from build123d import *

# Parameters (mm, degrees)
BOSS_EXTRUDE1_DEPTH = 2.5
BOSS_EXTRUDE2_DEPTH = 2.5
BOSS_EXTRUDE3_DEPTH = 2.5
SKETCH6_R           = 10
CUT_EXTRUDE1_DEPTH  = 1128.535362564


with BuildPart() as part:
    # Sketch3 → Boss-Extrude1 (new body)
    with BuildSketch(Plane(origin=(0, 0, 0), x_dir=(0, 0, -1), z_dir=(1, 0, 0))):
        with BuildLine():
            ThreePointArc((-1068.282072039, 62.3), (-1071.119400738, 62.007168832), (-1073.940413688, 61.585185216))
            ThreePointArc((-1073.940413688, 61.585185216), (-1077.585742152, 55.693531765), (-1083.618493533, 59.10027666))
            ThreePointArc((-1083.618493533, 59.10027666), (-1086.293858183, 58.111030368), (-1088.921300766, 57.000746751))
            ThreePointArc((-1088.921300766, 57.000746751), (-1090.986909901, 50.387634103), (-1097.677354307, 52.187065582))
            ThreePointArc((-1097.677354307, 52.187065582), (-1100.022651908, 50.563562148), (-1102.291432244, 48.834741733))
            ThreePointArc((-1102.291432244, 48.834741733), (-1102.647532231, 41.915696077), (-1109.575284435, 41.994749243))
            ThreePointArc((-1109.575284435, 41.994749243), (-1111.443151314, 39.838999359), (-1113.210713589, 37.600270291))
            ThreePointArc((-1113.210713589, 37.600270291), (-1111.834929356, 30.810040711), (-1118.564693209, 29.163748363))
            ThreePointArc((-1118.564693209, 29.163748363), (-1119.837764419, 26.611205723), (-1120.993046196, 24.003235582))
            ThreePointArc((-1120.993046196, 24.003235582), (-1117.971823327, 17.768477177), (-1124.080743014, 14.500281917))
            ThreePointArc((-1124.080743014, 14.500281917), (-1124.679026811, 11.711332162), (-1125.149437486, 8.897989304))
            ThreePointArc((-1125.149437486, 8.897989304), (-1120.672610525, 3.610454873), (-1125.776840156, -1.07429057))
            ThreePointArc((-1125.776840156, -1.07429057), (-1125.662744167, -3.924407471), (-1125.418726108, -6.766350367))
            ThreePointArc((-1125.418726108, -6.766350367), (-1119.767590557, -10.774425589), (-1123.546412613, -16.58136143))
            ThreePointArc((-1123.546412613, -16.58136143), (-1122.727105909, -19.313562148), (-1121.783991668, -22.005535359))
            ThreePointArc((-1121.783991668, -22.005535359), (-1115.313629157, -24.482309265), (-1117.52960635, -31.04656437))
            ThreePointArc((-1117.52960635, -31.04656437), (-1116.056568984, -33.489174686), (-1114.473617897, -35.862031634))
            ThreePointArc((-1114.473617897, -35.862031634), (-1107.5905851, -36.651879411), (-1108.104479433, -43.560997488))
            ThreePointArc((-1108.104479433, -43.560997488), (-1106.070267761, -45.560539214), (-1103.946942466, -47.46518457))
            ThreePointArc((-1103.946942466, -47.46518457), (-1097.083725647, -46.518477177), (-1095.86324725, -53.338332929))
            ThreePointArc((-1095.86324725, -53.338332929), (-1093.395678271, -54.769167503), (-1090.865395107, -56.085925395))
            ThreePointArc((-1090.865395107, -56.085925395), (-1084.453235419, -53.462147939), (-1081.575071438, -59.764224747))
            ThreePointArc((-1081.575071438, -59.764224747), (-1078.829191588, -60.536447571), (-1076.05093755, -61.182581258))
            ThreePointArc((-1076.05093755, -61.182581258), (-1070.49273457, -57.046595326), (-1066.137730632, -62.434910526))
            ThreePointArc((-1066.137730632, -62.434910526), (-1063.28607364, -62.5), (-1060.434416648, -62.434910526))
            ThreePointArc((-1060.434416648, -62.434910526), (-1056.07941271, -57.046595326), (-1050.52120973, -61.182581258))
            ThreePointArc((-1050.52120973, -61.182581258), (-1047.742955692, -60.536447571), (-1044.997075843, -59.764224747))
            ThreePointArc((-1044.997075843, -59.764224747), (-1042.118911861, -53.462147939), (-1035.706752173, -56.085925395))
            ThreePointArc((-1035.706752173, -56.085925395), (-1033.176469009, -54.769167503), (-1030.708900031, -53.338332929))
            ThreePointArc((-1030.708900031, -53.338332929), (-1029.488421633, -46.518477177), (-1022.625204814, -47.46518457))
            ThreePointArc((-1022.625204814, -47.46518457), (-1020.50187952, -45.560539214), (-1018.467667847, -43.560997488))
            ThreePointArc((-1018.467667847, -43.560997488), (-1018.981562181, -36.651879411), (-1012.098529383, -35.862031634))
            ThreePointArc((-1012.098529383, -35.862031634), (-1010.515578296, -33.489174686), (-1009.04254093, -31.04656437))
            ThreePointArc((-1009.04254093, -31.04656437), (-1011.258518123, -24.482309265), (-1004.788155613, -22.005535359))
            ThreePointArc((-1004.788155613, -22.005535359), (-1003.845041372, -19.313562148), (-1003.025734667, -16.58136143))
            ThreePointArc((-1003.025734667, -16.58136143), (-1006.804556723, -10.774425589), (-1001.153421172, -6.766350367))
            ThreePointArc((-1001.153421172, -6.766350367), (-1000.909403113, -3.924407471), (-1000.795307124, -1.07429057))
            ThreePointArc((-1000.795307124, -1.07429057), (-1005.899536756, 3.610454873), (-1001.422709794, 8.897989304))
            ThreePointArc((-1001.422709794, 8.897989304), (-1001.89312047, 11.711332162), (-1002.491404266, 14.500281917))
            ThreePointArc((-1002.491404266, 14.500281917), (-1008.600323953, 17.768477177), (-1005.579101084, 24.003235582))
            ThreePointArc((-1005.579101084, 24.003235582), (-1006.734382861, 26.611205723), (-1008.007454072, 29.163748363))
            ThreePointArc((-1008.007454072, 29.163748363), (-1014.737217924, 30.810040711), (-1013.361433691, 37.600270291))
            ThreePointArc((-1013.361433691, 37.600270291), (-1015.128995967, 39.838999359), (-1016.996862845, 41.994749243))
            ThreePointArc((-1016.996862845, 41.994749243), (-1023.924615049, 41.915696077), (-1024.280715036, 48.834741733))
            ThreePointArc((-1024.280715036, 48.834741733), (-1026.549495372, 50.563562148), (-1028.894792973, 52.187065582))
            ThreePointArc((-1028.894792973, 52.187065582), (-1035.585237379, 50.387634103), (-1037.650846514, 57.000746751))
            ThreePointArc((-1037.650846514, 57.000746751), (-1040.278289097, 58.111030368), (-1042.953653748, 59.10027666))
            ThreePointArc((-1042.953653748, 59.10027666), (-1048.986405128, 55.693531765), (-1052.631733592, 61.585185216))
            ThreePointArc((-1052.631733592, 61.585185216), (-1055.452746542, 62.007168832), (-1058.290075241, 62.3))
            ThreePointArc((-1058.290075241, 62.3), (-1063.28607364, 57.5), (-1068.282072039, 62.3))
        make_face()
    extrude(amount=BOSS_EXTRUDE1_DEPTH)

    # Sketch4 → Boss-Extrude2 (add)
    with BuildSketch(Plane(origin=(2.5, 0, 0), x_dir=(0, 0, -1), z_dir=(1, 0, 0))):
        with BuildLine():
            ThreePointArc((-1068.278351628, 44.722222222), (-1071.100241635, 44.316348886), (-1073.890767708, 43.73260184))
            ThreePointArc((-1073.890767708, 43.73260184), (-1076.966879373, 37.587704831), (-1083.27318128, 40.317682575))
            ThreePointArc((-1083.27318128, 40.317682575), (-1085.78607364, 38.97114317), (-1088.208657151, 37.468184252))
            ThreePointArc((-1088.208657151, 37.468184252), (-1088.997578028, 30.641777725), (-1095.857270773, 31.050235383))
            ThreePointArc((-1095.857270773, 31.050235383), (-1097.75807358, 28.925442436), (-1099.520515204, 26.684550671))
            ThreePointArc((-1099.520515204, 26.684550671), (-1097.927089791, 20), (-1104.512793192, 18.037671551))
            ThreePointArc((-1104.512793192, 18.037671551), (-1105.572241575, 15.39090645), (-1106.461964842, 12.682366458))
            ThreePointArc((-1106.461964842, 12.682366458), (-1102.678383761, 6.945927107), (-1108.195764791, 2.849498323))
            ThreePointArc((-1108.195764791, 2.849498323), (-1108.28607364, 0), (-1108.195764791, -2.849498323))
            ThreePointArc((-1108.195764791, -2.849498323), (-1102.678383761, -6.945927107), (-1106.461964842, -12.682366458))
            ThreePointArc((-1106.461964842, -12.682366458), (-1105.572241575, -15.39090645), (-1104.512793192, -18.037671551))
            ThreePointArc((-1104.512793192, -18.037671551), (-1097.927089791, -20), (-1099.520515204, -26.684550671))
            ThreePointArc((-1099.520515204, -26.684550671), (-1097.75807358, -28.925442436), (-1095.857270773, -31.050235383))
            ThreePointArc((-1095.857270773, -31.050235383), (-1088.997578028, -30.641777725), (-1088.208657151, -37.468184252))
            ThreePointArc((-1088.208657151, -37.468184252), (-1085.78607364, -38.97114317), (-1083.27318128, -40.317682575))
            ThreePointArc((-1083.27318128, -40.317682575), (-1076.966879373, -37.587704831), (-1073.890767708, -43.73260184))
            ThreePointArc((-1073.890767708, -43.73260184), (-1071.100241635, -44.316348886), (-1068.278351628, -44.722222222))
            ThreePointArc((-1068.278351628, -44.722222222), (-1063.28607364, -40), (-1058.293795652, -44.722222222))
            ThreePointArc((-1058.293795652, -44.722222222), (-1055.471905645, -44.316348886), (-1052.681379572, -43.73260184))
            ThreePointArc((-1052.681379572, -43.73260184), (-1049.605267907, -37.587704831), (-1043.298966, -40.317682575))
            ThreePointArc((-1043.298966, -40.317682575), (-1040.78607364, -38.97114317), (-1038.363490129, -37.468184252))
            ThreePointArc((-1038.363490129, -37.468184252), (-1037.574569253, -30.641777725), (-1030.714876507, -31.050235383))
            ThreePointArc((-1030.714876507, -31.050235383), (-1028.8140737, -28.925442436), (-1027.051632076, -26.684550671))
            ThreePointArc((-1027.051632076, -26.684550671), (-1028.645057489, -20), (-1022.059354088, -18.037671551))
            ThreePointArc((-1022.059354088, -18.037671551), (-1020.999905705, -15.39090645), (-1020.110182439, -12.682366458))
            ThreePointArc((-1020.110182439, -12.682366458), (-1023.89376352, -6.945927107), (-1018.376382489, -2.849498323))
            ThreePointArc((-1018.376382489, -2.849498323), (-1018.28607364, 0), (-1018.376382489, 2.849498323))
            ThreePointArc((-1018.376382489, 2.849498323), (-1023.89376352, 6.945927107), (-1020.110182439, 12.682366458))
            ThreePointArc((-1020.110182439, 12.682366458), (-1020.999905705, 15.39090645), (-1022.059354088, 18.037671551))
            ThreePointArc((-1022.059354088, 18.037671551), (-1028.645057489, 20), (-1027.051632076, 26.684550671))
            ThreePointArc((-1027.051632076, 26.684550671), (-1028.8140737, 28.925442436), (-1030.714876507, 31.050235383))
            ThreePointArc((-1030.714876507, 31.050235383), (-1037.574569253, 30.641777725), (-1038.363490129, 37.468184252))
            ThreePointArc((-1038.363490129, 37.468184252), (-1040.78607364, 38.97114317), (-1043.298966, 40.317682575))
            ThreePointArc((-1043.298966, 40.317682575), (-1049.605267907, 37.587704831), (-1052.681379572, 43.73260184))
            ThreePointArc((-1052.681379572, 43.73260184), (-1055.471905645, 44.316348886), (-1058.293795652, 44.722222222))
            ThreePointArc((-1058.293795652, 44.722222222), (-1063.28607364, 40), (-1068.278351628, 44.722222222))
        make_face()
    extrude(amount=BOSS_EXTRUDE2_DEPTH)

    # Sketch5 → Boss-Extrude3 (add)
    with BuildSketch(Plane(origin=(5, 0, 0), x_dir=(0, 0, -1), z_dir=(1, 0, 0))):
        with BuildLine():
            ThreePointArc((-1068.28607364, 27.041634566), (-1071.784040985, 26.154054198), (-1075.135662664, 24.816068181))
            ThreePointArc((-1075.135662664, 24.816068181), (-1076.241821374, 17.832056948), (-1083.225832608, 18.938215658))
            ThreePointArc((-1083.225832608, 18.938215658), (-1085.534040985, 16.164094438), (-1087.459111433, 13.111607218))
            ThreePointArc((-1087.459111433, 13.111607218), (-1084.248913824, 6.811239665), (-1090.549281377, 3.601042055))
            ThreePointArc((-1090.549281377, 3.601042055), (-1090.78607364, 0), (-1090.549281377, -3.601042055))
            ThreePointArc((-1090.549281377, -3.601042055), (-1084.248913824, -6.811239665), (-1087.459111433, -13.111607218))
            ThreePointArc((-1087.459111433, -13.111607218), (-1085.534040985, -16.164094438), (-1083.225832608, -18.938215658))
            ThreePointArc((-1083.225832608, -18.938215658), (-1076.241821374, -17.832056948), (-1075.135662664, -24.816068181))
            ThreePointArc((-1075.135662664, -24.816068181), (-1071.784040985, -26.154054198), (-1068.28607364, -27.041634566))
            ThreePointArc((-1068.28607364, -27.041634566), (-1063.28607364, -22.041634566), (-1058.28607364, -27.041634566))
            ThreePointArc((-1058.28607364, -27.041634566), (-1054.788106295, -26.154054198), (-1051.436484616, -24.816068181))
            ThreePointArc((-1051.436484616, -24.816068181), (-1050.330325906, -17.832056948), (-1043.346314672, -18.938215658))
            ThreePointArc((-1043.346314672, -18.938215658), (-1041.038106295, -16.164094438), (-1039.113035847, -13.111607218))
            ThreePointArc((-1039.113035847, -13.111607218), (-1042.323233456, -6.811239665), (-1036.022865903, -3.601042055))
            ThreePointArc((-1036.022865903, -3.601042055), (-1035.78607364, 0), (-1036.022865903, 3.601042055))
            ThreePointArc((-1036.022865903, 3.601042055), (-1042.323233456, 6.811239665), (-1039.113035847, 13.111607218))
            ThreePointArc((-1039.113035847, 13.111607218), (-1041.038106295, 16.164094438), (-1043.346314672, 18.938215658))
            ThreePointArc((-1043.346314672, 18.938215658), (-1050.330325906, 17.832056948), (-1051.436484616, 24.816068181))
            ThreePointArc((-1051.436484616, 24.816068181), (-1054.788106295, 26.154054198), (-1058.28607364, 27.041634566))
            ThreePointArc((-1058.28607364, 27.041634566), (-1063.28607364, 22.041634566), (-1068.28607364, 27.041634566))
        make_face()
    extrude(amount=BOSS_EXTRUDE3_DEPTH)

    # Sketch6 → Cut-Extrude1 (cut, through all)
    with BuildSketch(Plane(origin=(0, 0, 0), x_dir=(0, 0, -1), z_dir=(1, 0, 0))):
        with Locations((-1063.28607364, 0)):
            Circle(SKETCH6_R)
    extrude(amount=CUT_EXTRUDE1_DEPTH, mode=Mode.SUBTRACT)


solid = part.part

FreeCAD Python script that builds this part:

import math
import FreeCAD as App
import Part
import Sketcher

V = App.Vector
Q = App.Units.Quantity

doc = App.newDocument("Part")
body = doc.addObject("PartDesign::Body", "Body")

# Sketch on YZ plane
sketch1 = body.newObject("Sketcher::SketchObject", "Sketch")
sketch1.AttachmentSupport = (doc.getObject("YZ_Plane"), [""])
sketch1.MapMode = "FlatFace"
sketch1.addGeometry(Part.ArcOfCircle(Part.Circle(V(0, 1063.286074, 0), V(0, 0, 1), 62.5), math.radians(4.584886), math.radians(9.815114)), False)
sketch1.addGeometry(Part.ArcOfCircle(Part.Circle(V(60.536448, 1078.829192, 0), V(0, 0, 1), 5), math.radians(106.692443), math.radians(282.107557)), False)
sketch1.addGeometry(Part.ArcOfCircle(Part.Circle(V(0, 1063.286074, 0), V(0, 0, 1), 62.5), math.radians(18.984886), math.radians(24.215114)), False)
sketch1.addGeometry(Part.ArcOfCircle(Part.Circle(V(54.769168, 1093.395678, 0), V(0, 0, 1), 5), math.radians(121.092443), math.radians(296.507557)), False)
sketch1.addGeometry(Part.ArcOfCircle(Part.Circle(V(0, 1063.286074, 0), V(0, 0, 1), 62.5), math.radians(33.384886), math.radians(38.615114)), False)
sketch1.addGeometry(Part.ArcOfCircle(Part.Circle(V(45.560539, 1106.070268, 0), V(0, 0, 1), 5), math.radians(135.492443), math.radians(310.907557)), False)
sketch1.addGeometry(Part.ArcOfCircle(Part.Circle(V(0, 1063.286074, 0), V(0, 0, 1), 62.5), math.radians(47.784886), math.radians(53.015114)), False)
sketch1.addGeometry(Part.ArcOfCircle(Part.Circle(V(33.489175, 1116.056569, 0), V(0, 0, 1), 5), math.radians(149.892443), math.radians(325.307557)), False)
sketch1.addGeometry(Part.ArcOfCircle(Part.Circle(V(0, 1063.286074, 0), V(0, 0, 1), 62.5), math.radians(62.184886), math.radians(67.415114)), False)
sketch1.addGeometry(Part.ArcOfCircle(Part.Circle(V(19.313562, 1122.727106, 0), V(0, 0, 1), 5), math.radians(164.292443), math.radians(339.707557)), False)
sketch1.addGeometry(Part.ArcOfCircle(Part.Circle(V(0, 1063.286074, 0), V(0, 0, 1), 62.499999), math.radians(76.584886), math.radians(81.815114)), False)
sketch1.addGeometry(Part.ArcOfCircle(Part.Circle(V(3.924407, 1125.662744, 0), V(0, 0, 1), 5), math.radians(178.692443), math.radians(354.107557)), False)
sketch1.addGeometry(Part.ArcOfCircle(Part.Circle(V(0, 1063.286074, 0), V(0, 0, 1), 62.5), math.radians(90.984886), math.radians(96.215114)), False)
sketch1.addGeometry(Part.ArcOfCircle(Part.Circle(V(-11.711332, 1124.679027, 0), V(0, 0, 1), 5), math.radians(-166.907557), math.radians(8.507557)), False)
sketch1.addGeometry(Part.ArcOfCircle(Part.Circle(V(0, 1063.286074, 0), V(0, 0, 1), 62.5), math.radians(105.384886), math.radians(110.615114)), False)
sketch1.addGeometry(Part.ArcOfCircle(Part.Circle(V(-26.611206, 1119.837764, 0), V(0, 0, 1), 5), math.radians(-152.507557), math.radians(22.907557)), False)
sketch1.addGeometry(Part.ArcOfCircle(Part.Circle(V(0, 1063.286074, 0), V(0, 0, 1), 62.5), math.radians(119.784886), math.radians(125.015114)), False)
sketch1.addGeometry(Part.ArcOfCircle(Part.Circle(V(-39.838999, 1111.443151, 0), V(0, 0, 1), 5), math.radians(-138.107557), math.radians(37.307557)), False)
sketch1.addGeometry(Part.ArcOfCircle(Part.Circle(V(-0.000001, 1063.286074, 0), V(0, 0, 1), 62.499999), math.radians(134.184886), math.radians(139.415114)), False)
sketch1.addGeometry(Part.ArcOfCircle(Part.Circle(V(-50.563562, 1100.022652, 0), V(0, 0, 1), 5), math.radians(-123.707557), math.radians(51.707557)), False)
sketch1.addGeometry(Part.ArcOfCircle(Part.Circle(V(0, 1063.286074, 0), V(0, 0, 1), 62.5), math.radians(148.584886), math.radians(153.815114)), False)
sketch1.addGeometry(Part.ArcOfCircle(Part.Circle(V(-58.11103, 1086.293858, 0), V(0, 0, 1), 5), math.radians(-109.307557), math.radians(66.107557)), False)
sketch1.addGeometry(Part.ArcOfCircle(Part.Circle(V(0, 1063.286074, 0), V(0, 0, 1), 62.5), math.radians(162.984886), math.radians(168.215114)), False)
sketch1.addGeometry(Part.ArcOfCircle(Part.Circle(V(-62.007169, 1071.119401, 0), V(0, 0, 1), 5), math.radians(-94.907557), math.radians(80.507557)), False)
sketch1.addGeometry(Part.ArcOfCircle(Part.Circle(V(0, 1063.286074, 0), V(0, 0, 1), 62.5), math.radians(177.384886), math.radians(182.615114)), False)
sketch1.addGeometry(Part.ArcOfCircle(Part.Circle(V(-62.007169, 1055.452747, 0), V(0, 0, 1), 5), math.radians(-80.507557), math.radians(94.907557)), False)
sketch1.addGeometry(Part.ArcOfCircle(Part.Circle(V(0, 1063.286074, 0), V(0, 0, 1), 62.5), math.radians(-168.215114), math.radians(-162.984886)), False)
sketch1.addGeometry(Part.ArcOfCircle(Part.Circle(V(-58.11103, 1040.278289, 0), V(0, 0, 1), 5), math.radians(-66.107557), math.radians(109.307557)), False)
sketch1.addGeometry(Part.ArcOfCircle(Part.Circle(V(0, 1063.286074, 0), V(0, 0, 1), 62.5), math.radians(-153.815114), math.radians(-148.584886)), False)
sketch1.addGeometry(Part.ArcOfCircle(Part.Circle(V(-50.563562, 1026.549495, 0), V(0, 0, 1), 5), math.radians(-51.707557), math.radians(123.707557)), False)
sketch1.addGeometry(Part.ArcOfCircle(Part.Circle(V(0, 1063.286074, 0), V(0, 0, 1), 62.5), math.radians(-139.415114), math.radians(-134.184886)), False)
sketch1.addGeometry(Part.ArcOfCircle(Part.Circle(V(-39.838999, 1015.128996, 0), V(0, 0, 1), 5), math.radians(-37.307557), math.radians(138.107557)), False)
sketch1.addGeometry(Part.ArcOfCircle(Part.Circle(V(0, 1063.286074, 0), V(0, 0, 1), 62.5), math.radians(-125.015114), math.radians(-119.784886)), False)
sketch1.addGeometry(Part.ArcOfCircle(Part.Circle(V(-26.611206, 1006.734383, 0), V(0, 0, 1), 5), math.radians(-22.907557), math.radians(152.507557)), False)
sketch1.addGeometry(Part.ArcOfCircle(Part.Circle(V(0, 1063.286074, 0), V(0, 0, 1), 62.5), math.radians(-110.615114), math.radians(-105.384886)), False)
sketch1.addGeometry(Part.ArcOfCircle(Part.Circle(V(-11.711332, 1001.89312, 0), V(0, 0, 1), 5), math.radians(-8.507557), math.radians(166.907557)), False)
sketch1.addGeometry(Part.ArcOfCircle(Part.Circle(V(0, 1063.286073, 0), V(0, 0, 1), 62.5), math.radians(-96.215114), math.radians(-90.984886)), False)
sketch1.addGeometry(Part.ArcOfCircle(Part.Circle(V(3.924407, 1000.909403, 0), V(0, 0, 1), 5), math.radians(5.892443), math.radians(181.307557)), False)
sketch1.addGeometry(Part.ArcOfCircle(Part.Circle(V(0, 1063.286074, 0), V(0, 0, 1), 62.5), math.radians(-81.815114), math.radians(-76.584886)), False)
sketch1.addGeometry(Part.ArcOfCircle(Part.Circle(V(19.313562, 1003.845041, 0), V(0, 0, 1), 5), math.radians(20.292443), math.radians(195.707557)), False)
sketch1.addGeometry(Part.ArcOfCircle(Part.Circle(V(0, 1063.286073, 0), V(0, 0, 1), 62.5), math.radians(-67.415114), math.radians(-62.184886)), False)
sketch1.addGeometry(Part.ArcOfCircle(Part.Circle(V(33.489175, 1010.515578, 0), V(0, 0, 1), 5), math.radians(34.692443), math.radians(210.107557)), False)
sketch1.addGeometry(Part.ArcOfCircle(Part.Circle(V(0, 1063.286074, 0), V(0, 0, 1), 62.500001), math.radians(-53.015114), math.radians(-47.784886)), False)
sketch1.addGeometry(Part.ArcOfCircle(Part.Circle(V(45.560539, 1020.50188, 0), V(0, 0, 1), 5), math.radians(49.092443), math.radians(224.507557)), False)
sketch1.addGeometry(Part.ArcOfCircle(Part.Circle(V(0, 1063.286074, 0), V(0, 0, 1), 62.5), math.radians(-38.615114), math.radians(-33.384886)), False)
sketch1.addGeometry(Part.ArcOfCircle(Part.Circle(V(54.769168, 1033.176469, 0), V(0, 0, 1), 5), math.radians(63.492443), math.radians(238.907557)), False)
sketch1.addGeometry(Part.ArcOfCircle(Part.Circle(V(0, 1063.286074, 0), V(0, 0, 1), 62.5), math.radians(-24.215114), math.radians(-18.984886)), False)
sketch1.addGeometry(Part.ArcOfCircle(Part.Circle(V(60.536448, 1047.742956, 0), V(0, 0, 1), 5), math.radians(77.892443), math.radians(253.307557)), False)
sketch1.addGeometry(Part.ArcOfCircle(Part.Circle(V(0, 1063.286074, 0), V(0, 0, 1), 62.5), math.radians(-9.815114), math.radians(-4.584886)), False)
sketch1.addGeometry(Part.ArcOfCircle(Part.Circle(V(62.5, 1063.286074, 0), V(0, 0, 1), 5), math.radians(92.292443), math.radians(267.707557)), False)
sketch1.addConstraint(Sketcher.Constraint("Coincident", 0, 2, 1, 2))
sketch1.addConstraint(Sketcher.Constraint("Coincident", 1, 1, 2, 1))
sketch1.addConstraint(Sketcher.Constraint("Coincident", 2, 2, 3, 2))
sketch1.addConstraint(Sketcher.Constraint("Coincident", 3, 1, 4, 1))
sketch1.addConstraint(Sketcher.Constraint("Coincident", 4, 2, 5, 2))
sketch1.addConstraint(Sketcher.Constraint("Coincident", 5, 1, 6, 1))
sketch1.addConstraint(Sketcher.Constraint("Coincident", 6, 2, 7, 2))
sketch1.addConstraint(Sketcher.Constraint("Coincident", 7, 1, 8, 1))
sketch1.addConstraint(Sketcher.Constraint("Coincident", 8, 2, 9, 2))
sketch1.addConstraint(Sketcher.Constraint("Coincident", 9, 1, 10, 1))
sketch1.addConstraint(Sketcher.Constraint("Coincident", 10, 2, 11, 2))
sketch1.addConstraint(Sketcher.Constraint("Coincident", 11, 1, 12, 1))
sketch1.addConstraint(Sketcher.Constraint("Coincident", 12, 2, 13, 2))
sketch1.addConstraint(Sketcher.Constraint("Coincident", 13, 1, 14, 1))
sketch1.addConstraint(Sketcher.Constraint("Coincident", 14, 2, 15, 2))
sketch1.addConstraint(Sketcher.Constraint("Coincident", 15, 1, 16, 1))
sketch1.addConstraint(Sketcher.Constraint("Coincident", 16, 2, 17, 2))
sketch1.addConstraint(Sketcher.Constraint("Coincident", 17, 1, 18, 1))
sketch1.addConstraint(Sketcher.Constraint("Coincident", 18, 2, 19, 2))
sketch1.addConstraint(Sketcher.Constraint("Coincident", 19, 1, 20, 1))
sketch1.addConstraint(Sketcher.Constraint("Coincident", 20, 2, 21, 2))
sketch1.addConstraint(Sketcher.Constraint("Coincident", 21, 1, 22, 1))
sketch1.addConstraint(Sketcher.Constraint("Coincident", 22, 2, 23, 2))
sketch1.addConstraint(Sketcher.Constraint("Coincident", 23, 1, 24, 1))
sketch1.addConstraint(Sketcher.Constraint("Coincident", 24, 2, 25, 2))
sketch1.addConstraint(Sketcher.Constraint("Coincident", 25, 1, 26, 1))
sketch1.addConstraint(Sketcher.Constraint("Coincident", 26, 2, 27, 2))
sketch1.addConstraint(Sketcher.Constraint("Coincident", 27, 1, 28, 1))
sketch1.addConstraint(Sketcher.Constraint("Coincident", 28, 2, 29, 2))
sketch1.addConstraint(Sketcher.Constraint("Coincident", 29, 1, 30, 1))
sketch1.addConstraint(Sketcher.Constraint("Coincident", 30, 2, 31, 2))
sketch1.addConstraint(Sketcher.Constraint("Coincident", 31, 1, 32, 1))
sketch1.addConstraint(Sketcher.Constraint("Coincident", 32, 2, 33, 2))
sketch1.addConstraint(Sketcher.Constraint("Coincident", 33, 1, 34, 1))
sketch1.addConstraint(Sketcher.Constraint("Coincident", 34, 2, 35, 2))
sketch1.addConstraint(Sketcher.Constraint("Coincident", 35, 1, 36, 1))
sketch1.addConstraint(Sketcher.Constraint("Coincident", 36, 2, 37, 2))
sketch1.addConstraint(Sketcher.Constraint("Coincident", 37, 1, 38, 1))
sketch1.addConstraint(Sketcher.Constraint("Coincident", 38, 2, 39, 2))
sketch1.addConstraint(Sketcher.Constraint("Coincident", 39, 1, 40, 1))
sketch1.addConstraint(Sketcher.Constraint("Coincident", 40, 2, 41, 2))
sketch1.addConstraint(Sketcher.Constraint("Coincident", 41, 1, 42, 1))
sketch1.addConstraint(Sketcher.Constraint("Coincident", 42, 2, 43, 2))
sketch1.addConstraint(Sketcher.Constraint("Coincident", 43, 1, 44, 1))
sketch1.addConstraint(Sketcher.Constraint("Coincident", 44, 2, 45, 2))
sketch1.addConstraint(Sketcher.Constraint("Coincident", 45, 1, 46, 1))
sketch1.addConstraint(Sketcher.Constraint("Coincident", 46, 2, 47, 2))
sketch1.addConstraint(Sketcher.Constraint("Coincident", 47, 1, 48, 1))
sketch1.addConstraint(Sketcher.Constraint("Coincident", 48, 2, 49, 2))
sketch1.addConstraint(Sketcher.Constraint("Coincident", 49, 1, 0, 1))
sketch1.addConstraint(Sketcher.Constraint("Coincident", 2, 3, 0, 3))
sketch1.addConstraint(Sketcher.Constraint("Coincident", 4, 3, 0, 3))
sketch1.addConstraint(Sketcher.Constraint("Coincident", 6, 3, 0, 3))
sketch1.addConstraint(Sketcher.Constraint("Coincident", 8, 3, 0, 3))
sketch1.addConstraint(Sketcher.Constraint("Coincident", 10, 3, 0, 3))
sketch1.addConstraint(Sketcher.Constraint("Coincident", 12, 3, 0, 3))
sketch1.addConstraint(Sketcher.Constraint("Coincident", 14, 3, 0, 3))
sketch1.addConstraint(Sketcher.Constraint("Coincident", 16, 3, 0, 3))
sketch1.addConstraint(Sketcher.Constraint("Coincident", 18, 3, 0, 3))
sketch1.addConstraint(Sketcher.Constraint("Coincident", 20, 3, 0, 3))
sketch1.addConstraint(Sketcher.Constraint("Coincident", 22, 3, 0, 3))
sketch1.addConstraint(Sketcher.Constraint("Coincident", 24, 3, 0, 3))
sketch1.addConstraint(Sketcher.Constraint("Coincident", 26, 3, 0, 3))
sketch1.addConstraint(Sketcher.Constraint("Coincident", 28, 3, 0, 3))
sketch1.addConstraint(Sketcher.Constraint("Coincident", 30, 3, 0, 3))
sketch1.addConstraint(Sketcher.Constraint("Coincident", 32, 3, 0, 3))
sketch1.addConstraint(Sketcher.Constraint("Coincident", 34, 3, 0, 3))
sketch1.addConstraint(Sketcher.Constraint("Coincident", 36, 3, 0, 3))
sketch1.addConstraint(Sketcher.Constraint("Coincident", 38, 3, 0, 3))
sketch1.addConstraint(Sketcher.Constraint("Coincident", 40, 3, 0, 3))
sketch1.addConstraint(Sketcher.Constraint("Coincident", 42, 3, 0, 3))
sketch1.addConstraint(Sketcher.Constraint("Coincident", 44, 3, 0, 3))
sketch1.addConstraint(Sketcher.Constraint("Coincident", 46, 3, 0, 3))
sketch1.addConstraint(Sketcher.Constraint("Coincident", 48, 3, 0, 3))
sketch1.addConstraint(Sketcher.Constraint("Equal", 0, 2))
sketch1.addConstraint(Sketcher.Constraint("Equal", 1, 3))
sketch1.addConstraint(Sketcher.Constraint("Equal", 2, 4))
sketch1.addConstraint(Sketcher.Constraint("Equal", 3, 5))
sketch1.addConstraint(Sketcher.Constraint("Equal", 4, 6))
sketch1.addConstraint(Sketcher.Constraint("Equal", 5, 7))
sketch1.addConstraint(Sketcher.Constraint("Equal", 6, 8))
sketch1.addConstraint(Sketcher.Constraint("Equal", 7, 9))
sketch1.addConstraint(Sketcher.Constraint("Equal", 8, 10))
sketch1.addConstraint(Sketcher.Constraint("Equal", 9, 11))
sketch1.addConstraint(Sketcher.Constraint("Equal", 10, 12))
sketch1.addConstraint(Sketcher.Constraint("Equal", 11, 13))
sketch1.addConstraint(Sketcher.Constraint("Equal", 12, 14))
sketch1.addConstraint(Sketcher.Constraint("Equal", 13, 15))
sketch1.addConstraint(Sketcher.Constraint("Equal", 14, 16))
sketch1.addConstraint(Sketcher.Constraint("Equal", 15, 17))
sketch1.addConstraint(Sketcher.Constraint("Equal", 16, 18))
sketch1.addConstraint(Sketcher.Constraint("Equal", 17, 19))
sketch1.addConstraint(Sketcher.Constraint("Equal", 18, 20))
sketch1.addConstraint(Sketcher.Constraint("Equal", 19, 21))
sketch1.addConstraint(Sketcher.Constraint("Equal", 20, 22))
sketch1.addConstraint(Sketcher.Constraint("Equal", 21, 23))
sketch1.addConstraint(Sketcher.Constraint("Equal", 22, 24))
sketch1.addConstraint(Sketcher.Constraint("Equal", 23, 25))
sketch1.addConstraint(Sketcher.Constraint("Equal", 24, 26))
sketch1.addConstraint(Sketcher.Constraint("Equal", 25, 27))
sketch1.addConstraint(Sketcher.Constraint("Equal", 26, 28))
sketch1.addConstraint(Sketcher.Constraint("Equal", 27, 29))
sketch1.addConstraint(Sketcher.Constraint("Equal", 28, 30))
sketch1.addConstraint(Sketcher.Constraint("Equal", 29, 31))
sketch1.addConstraint(Sketcher.Constraint("Equal", 30, 32))
sketch1.addConstraint(Sketcher.Constraint("Equal", 31, 33))
sketch1.addConstraint(Sketcher.Constraint("Equal", 32, 34))
sketch1.addConstraint(Sketcher.Constraint("Equal", 33, 35))
sketch1.addConstraint(Sketcher.Constraint("Equal", 34, 36))
sketch1.addConstraint(Sketcher.Constraint("Equal", 35, 37))
sketch1.addConstraint(Sketcher.Constraint("Equal", 36, 38))
sketch1.addConstraint(Sketcher.Constraint("Equal", 37, 39))
sketch1.addConstraint(Sketcher.Constraint("Equal", 38, 40))
sketch1.addConstraint(Sketcher.Constraint("Equal", 39, 41))
sketch1.addConstraint(Sketcher.Constraint("Equal", 40, 42))
sketch1.addConstraint(Sketcher.Constraint("Equal", 41, 43))
sketch1.addConstraint(Sketcher.Constraint("Equal", 42, 44))
sketch1.addConstraint(Sketcher.Constraint("Equal", 43, 45))
sketch1.addConstraint(Sketcher.Constraint("Equal", 44, 46))
sketch1.addConstraint(Sketcher.Constraint("Equal", 45, 47))
sketch1.addConstraint(Sketcher.Constraint("Equal", 46, 48))
sketch1.addConstraint(Sketcher.Constraint("Equal", 47, 49))
sketch1.addConstraint(Sketcher.Constraint("PointOnObject", 0, 3, -2))
sketch1.addConstraint(Sketcher.Constraint("Horizontal", 48, 3, 49, 3))
sketch1.addConstraint(Sketcher.Constraint("Vertical", 23, 3, 25, 3))
sketch1.addConstraint(Sketcher.Constraint("Vertical", 21, 3, 27, 3))
sketch1.addConstraint(Sketcher.Constraint("Vertical", 19, 3, 29, 3))
sketch1.addConstraint(Sketcher.Constraint("Vertical", 17, 3, 31, 3))
sketch1.addConstraint(Sketcher.Constraint("Vertical", 15, 3, 33, 3))
sketch1.addConstraint(Sketcher.Constraint("Vertical", 13, 3, 35, 3))
sketch1.addConstraint(Sketcher.Constraint("Vertical", 11, 3, 37, 3))
sketch1.addConstraint(Sketcher.Constraint("Vertical", 9, 3, 39, 3))
sketch1.addConstraint(Sketcher.Constraint("Vertical", 7, 3, 41, 3))
sketch1.addConstraint(Sketcher.Constraint("Vertical", 5, 3, 43, 3))
sketch1.addConstraint(Sketcher.Constraint("Vertical", 3, 3, 45, 3))
sketch1.addConstraint(Sketcher.Constraint("Vertical", 1, 3, 47, 3))
sketch1.addConstraint(Sketcher.Constraint("Vertical", 23, 1, 24, 2))
sketch1.addConstraint(Sketcher.Constraint("Vertical", 21, 1, 26, 2))
sketch1.addConstraint(Sketcher.Constraint("Vertical", 19, 1, 28, 2))
sketch1.addConstraint(Sketcher.Constraint("Vertical", 17, 1, 30, 2))
sketch1.addConstraint(Sketcher.Constraint("Vertical", 15, 1, 32, 2))
sketch1.addConstraint(Sketcher.Constraint("Vertical", 13, 1, 34, 2))
sketch1.addConstraint(Sketcher.Constraint("Vertical", 10, 2, 37, 1))
sketch1.addConstraint(Sketcher.Constraint("Vertical", 9, 1, 38, 2))
sketch1.addConstraint(Sketcher.Constraint("Vertical", 7, 1, 40, 2))
sketch1.addConstraint(Sketcher.Constraint("Vertical", 5, 1, 42, 2))
sketch1.addConstraint(Sketcher.Constraint("Vertical", 3, 1, 44, 2))
sketch1.addConstraint(Sketcher.Constraint("Vertical", 1, 1, 46, 2))
sketch1.addConstraint(Sketcher.Constraint("Radius", 1, Q("5 mm")))
sketch1.addConstraint(Sketcher.Constraint("Radius", 0, Q("62.5 mm")))
sketch1.addConstraint(Sketcher.Constraint("DistanceX", -1, 1, 49, 3, Q("62.5 mm")))
sketch1.addConstraint(Sketcher.Constraint("DistanceX", 17, 3, -1, 1, Q("39.838999 mm")))
sketch1.addConstraint(Sketcher.Constraint("DistanceY", -1, 1, 23, 3, Q("1071.119401 mm")))
sketch1.addConstraint(Sketcher.Constraint("DistanceY", -1, 1, 2, 2, Q("1088.921301 mm")))
sketch1.addConstraint(Sketcher.Constraint("DistanceY", -1, 1, 28, 2, Q("1030.7089 mm")))
sketch1.addConstraint(Sketcher.Constraint("DistanceY", -1, 1, 39, 1, Q("1005.579101 mm")))
sketch1.addConstraint(Sketcher.Constraint("DistanceY", -1, 1, 1, 3, Q("1078.829192 mm")))
sketch1.addConstraint(Sketcher.Constraint("DistanceY", -1, 1, 3, 3, Q("1093.395678 mm")))
sketch1.addConstraint(Sketcher.Constraint("DistanceX", -1, 1, 5, 3, Q("45.560539 mm")))
sketch1.addConstraint(Sketcher.Constraint("DistanceY", -1, 1, 7, 3, Q("1116.056569 mm")))
sketch1.addConstraint(Sketcher.Constraint("DistanceY", -1, 1, 17, 3, Q("1111.443151 mm")))
sketch1.addConstraint(Sketcher.Constraint("DistanceY", -1, 1, 19, 3, Q("1100.022652 mm")))
sketch1.addConstraint(Sketcher.Constraint("DistanceX", 21, 3, -1, 1, Q("58.11103 mm")))
sketch1.addConstraint(Sketcher.Constraint("DistanceY", -1, 1, 21, 3, Q("1086.293858 mm")))
sketch1.addConstraint(Sketcher.Constraint("DistanceX", 23, 3, -1, 1, Q("62.007169 mm")))
sketch1.addConstraint(Sketcher.Constraint("DistanceY", -1, 1, 27, 3, Q("1040.278289 mm")))
sketch1.addConstraint(Sketcher.Constraint("DistanceY", -1, 1, 35, 3, Q("1001.89312 mm")))
sketch1.addConstraint(Sketcher.Constraint("DistanceY", -1, 1, 39, 3, Q("1003.845041 mm")))
sketch1.addConstraint(Sketcher.Constraint("DistanceY", -1, 1, 43, 3, Q("1020.50188 mm")))
sketch1.addConstraint(Sketcher.Constraint("DistanceX", -1, 1, 6, 2, Q("37.60027 mm")))
sketch1.addConstraint(Sketcher.Constraint("DistanceX", -1, 1, 10, 2, Q("8.897989 mm")))
sketch1.addConstraint(Sketcher.Constraint("DistanceX", 11, 1, -1, 1, Q("1.074291 mm")))
sketch1.addConstraint(Sketcher.Constraint("DistanceX", 12, 2, -1, 1, Q("6.76635 mm")))
sketch1.addConstraint(Sketcher.Constraint("DistanceY", -1, 1, 14, 2, Q("1121.783992 mm")))
sketch1.addConstraint(Sketcher.Constraint("DistanceX", -1, 1, 1, 3, Q("60.536448 mm")))
sketch1.addConstraint(Sketcher.Constraint("DistanceX", 15, 3, -1, 1, Q("26.611206 mm")))
pad1 = body.newObject("PartDesign::Pad", "Pad")
pad1.Profile = sketch1
pad1.Length = 2.5

# Sketch on YZ plane
sketch2 = body.newObject("Sketcher::SketchObject", "Sketch001")
sketch2.AttachmentSupport = (doc.getObject("YZ_Plane"), [""])
sketch2.MapMode = "FlatFace"
sketch2.AttachmentOffset = App.Placement(V(0, 0, 2.5), App.Rotation())
sketch2.addGeometry(Part.ArcOfCircle(Part.Circle(V(0, 1063, 0), V(0, 0, 1), 45), math.radians(6.37), math.radians(13.63)), False)
sketch2.addGeometry(Part.ArcOfCircle(Part.Circle(V(42, 1079, 0), V(0, 0, 1), 5), math.radians(113), math.radians(287)), False)
sketch2.addGeometry(Part.ArcOfCircle(Part.Circle(V(0, 1063, 0), V(0, 0, 1), 45), math.radians(26.37), math.radians(33.63)), False)
sketch2.addGeometry(Part.ArcOfCircle(Part.Circle(V(34, 1092, 0), V(0, 0, 1), 5), math.radians(133), math.radians(307)), False)
sketch2.addGeometry(Part.ArcOfCircle(Part.Circle(V(0, 1063, 0), V(0, 0, 1), 45), math.radians(46.37), math.radians(53.63)), False)
sketch2.addGeometry(Part.ArcOfCircle(Part.Circle(V(22, 1102, 0), V(0, 0, 1), 5), math.radians(153), math.radians(327)), False)
sketch2.addGeometry(Part.ArcOfCircle(Part.Circle(V(0, 1063, 0), V(0, 0, 1), 45), math.radians(66.37), math.radians(73.63)), False)
sketch2.addGeometry(Part.ArcOfCircle(Part.Circle(V(8, 1108, 0), V(0, 0, 1), 5), math.radians(173), math.radians(347)), False)
sketch2.addGeometry(Part.ArcOfCircle(Part.Circle(V(0, 1063, 0), V(0, 0, 1), 45), math.radians(86.37), math.radians(93.63)), False)
sketch2.addGeometry(Part.ArcOfCircle(Part.Circle(V(-8, 1108, 0), V(0, 0, 1), 5), math.radians(-167), math.radians(7)), False)
sketch2.addGeometry(Part.ArcOfCircle(Part.Circle(V(0, 1063, 0), V(0, 0, 1), 45), math.radians(106.37), math.radians(113.63)), False)
sketch2.addGeometry(Part.ArcOfCircle(Part.Circle(V(-22, 1102, 0), V(0, 0, 1), 5), math.radians(-147), math.radians(27)), False)
sketch2.addGeometry(Part.ArcOfCircle(Part.Circle(V(0, 1063, 0), V(0, 0, 1), 45), math.radians(126.37), math.radians(133.63)), False)
sketch2.addGeometry(Part.ArcOfCircle(Part.Circle(V(-34, 1092, 0), V(0, 0, 1), 5), math.radians(-127), math.radians(47)), False)
sketch2.addGeometry(Part.ArcOfCircle(Part.Circle(V(0, 1063, 0), V(0, 0, 1), 45), math.radians(146.37), math.radians(153.63)), False)
sketch2.addGeometry(Part.ArcOfCircle(Part.Circle(V(-42, 1079, 0), V(0, 0, 1), 5), math.radians(-107), math.radians(67)), False)
sketch2.addGeometry(Part.ArcOfCircle(Part.Circle(V(0, 1063, 0), V(0, 0, 1), 45), math.radians(166.37), math.radians(173.63)), False)
sketch2.addGeometry(Part.ArcOfCircle(Part.Circle(V(-45, 1063, 0), V(0, 0, 1), 5), math.radians(-87), math.radians(87)), False)
sketch2.addGeometry(Part.ArcOfCircle(Part.Circle(V(0, 1063, 0), V(0, 0, 1), 45), math.radians(-173.63), math.radians(-166.37)), False)
sketch2.addGeometry(Part.ArcOfCircle(Part.Circle(V(-42, 1048, 0), V(0, 0, 1), 5), math.radians(-67), math.radians(107)), False)
sketch2.addGeometry(Part.ArcOfCircle(Part.Circle(V(0, 1063, 0), V(0, 0, 1), 45), math.radians(-153.63), math.radians(-146.37)), False)
sketch2.addGeometry(Part.ArcOfCircle(Part.Circle(V(-34, 1034, 0), V(0, 0, 1), 5), math.radians(-47), math.radians(127)), False)
sketch2.addGeometry(Part.ArcOfCircle(Part.Circle(V(0, 1063, 0), V(0, 0, 1), 45), math.radians(-133.63), math.radians(-126.37)), False)
sketch2.addGeometry(Part.ArcOfCircle(Part.Circle(V(-22, 1024, 0), V(0, 0, 1), 5), math.radians(-27), math.radians(147)), False)
sketch2.addGeometry(Part.ArcOfCircle(Part.Circle(V(0, 1063, 0), V(0, 0, 1), 45), math.radians(-113.63), math.radians(-106.37)), False)
sketch2.addGeometry(Part.ArcOfCircle(Part.Circle(V(-8, 1019, 0), V(0, 0, 1), 5), math.radians(-7), math.radians(167)), False)
sketch2.addGeometry(Part.ArcOfCircle(Part.Circle(V(0, 1063, 0), V(0, 0, 1), 45), math.radians(-93.63), math.radians(-86.37)), False)
sketch2.addGeometry(Part.ArcOfCircle(Part.Circle(V(8, 1019, 0), V(0, 0, 1), 5), math.radians(13), math.radians(187)), False)
sketch2.addGeometry(Part.ArcOfCircle(Part.Circle(V(0, 1063, 0), V(0, 0, 1), 45), math.radians(-73.63), math.radians(-66.37)), False)
sketch2.addGeometry(Part.ArcOfCircle(Part.Circle(V(22, 1024, 0), V(0, 0, 1), 5), math.radians(33), math.radians(207)), False)
sketch2.addGeometry(Part.ArcOfCircle(Part.Circle(V(0, 1063, 0), V(0, 0, 1), 45), math.radians(-53.63), math.radians(-46.37)), False)
sketch2.addGeometry(Part.ArcOfCircle(Part.Circle(V(34, 1034, 0), V(0, 0, 1), 5), math.radians(53), math.radians(227)), False)
sketch2.addGeometry(Part.ArcOfCircle(Part.Circle(V(0, 1063, 0), V(0, 0, 1), 45), math.radians(-33.63), math.radians(-26.37)), False)
sketch2.addGeometry(Part.ArcOfCircle(Part.Circle(V(42, 1048, 0), V(0, 0, 1), 5), math.radians(73), math.radians(247)), False)
sketch2.addGeometry(Part.ArcOfCircle(Part.Circle(V(0, 1063, 0), V(0, 0, 1), 45), math.radians(-13.63), math.radians(-6.37)), False)
sketch2.addGeometry(Part.ArcOfCircle(Part.Circle(V(45, 1063, 0), V(0, 0, 1), 5), math.radians(93), math.radians(267)), False)
sketch2.addConstraint(Sketcher.Constraint("Coincident", 0, 2, 1, 2))
sketch2.addConstraint(Sketcher.Constraint("Coincident", 1, 1, 2, 1))
sketch2.addConstraint(Sketcher.Constraint("Coincident", 2, 2, 3, 2))
sketch2.addConstraint(Sketcher.Constraint("Coincident", 3, 1, 4, 1))
sketch2.addConstraint(Sketcher.Constraint("Coincident", 4, 2, 5, 2))
sketch2.addConstraint(Sketcher.Constraint("Coincident", 5, 1, 6, 1))
sketch2.addConstraint(Sketcher.Constraint("Coincident", 6, 2, 7, 2))
sketch2.addConstraint(Sketcher.Constraint("Coincident", 7, 1, 8, 1))
sketch2.addConstraint(Sketcher.Constraint("Coincident", 8, 2, 9, 2))
sketch2.addConstraint(Sketcher.Constraint("Coincident", 9, 1, 10, 1))
sketch2.addConstraint(Sketcher.Constraint("Coincident", 10, 2, 11, 2))
sketch2.addConstraint(Sketcher.Constraint("Coincident", 11, 1, 12, 1))
sketch2.addConstraint(Sketcher.Constraint("Coincident", 12, 2, 13, 2))
sketch2.addConstraint(Sketcher.Constraint("Coincident", 13, 1, 14, 1))
sketch2.addConstraint(Sketcher.Constraint("Coincident", 14, 2, 15, 2))
sketch2.addConstraint(Sketcher.Constraint("Coincident", 15, 1, 16, 1))
sketch2.addConstraint(Sketcher.Constraint("Coincident", 16, 2, 17, 2))
sketch2.addConstraint(Sketcher.Constraint("Coincident", 17, 1, 18, 1))
sketch2.addConstraint(Sketcher.Constraint("Coincident", 18, 2, 19, 2))
sketch2.addConstraint(Sketcher.Constraint("Coincident", 19, 1, 20, 1))
sketch2.addConstraint(Sketcher.Constraint("Coincident", 20, 2, 21, 2))
sketch2.addConstraint(Sketcher.Constraint("Coincident", 21, 1, 22, 1))
sketch2.addConstraint(Sketcher.Constraint("Coincident", 22, 2, 23, 2))
sketch2.addConstraint(Sketcher.Constraint("Coincident", 23, 1, 24, 1))
sketch2.addConstraint(Sketcher.Constraint("Coincident", 24, 2, 25, 2))
sketch2.addConstraint(Sketcher.Constraint("Coincident", 25, 1, 26, 1))
sketch2.addConstraint(Sketcher.Constraint("Coincident", 26, 2, 27, 2))
sketch2.addConstraint(Sketcher.Constraint("Coincident", 27, 1, 28, 1))
sketch2.addConstraint(Sketcher.Constraint("Coincident", 28, 2, 29, 2))
sketch2.addConstraint(Sketcher.Constraint("Coincident", 29, 1, 30, 1))
sketch2.addConstraint(Sketcher.Constraint("Coincident", 30, 2, 31, 2))
sketch2.addConstraint(Sketcher.Constraint("Coincident", 31, 1, 32, 1))
sketch2.addConstraint(Sketcher.Constraint("Coincident", 32, 2, 33, 2))
sketch2.addConstraint(Sketcher.Constraint("Coincident", 33, 1, 34, 1))
sketch2.addConstraint(Sketcher.Constraint("Coincident", 34, 2, 35, 2))
sketch2.addConstraint(Sketcher.Constraint("Coincident", 35, 1, 0, 1))
sketch2.addConstraint(Sketcher.Constraint("Coincident", 2, 3, 0, 3))
sketch2.addConstraint(Sketcher.Constraint("Coincident", 4, 3, 0, 3))
sketch2.addConstraint(Sketcher.Constraint("Coincident", 6, 3, 0, 3))
sketch2.addConstraint(Sketcher.Constraint("Coincident", 8, 3, 0, 3))
sketch2.addConstraint(Sketcher.Constraint("Coincident", 10, 3, 0, 3))
sketch2.addConstraint(Sketcher.Constraint("Coincident", 12, 3, 0, 3))
sketch2.addConstraint(Sketcher.Constraint("Coincident", 14, 3, 0, 3))
sketch2.addConstraint(Sketcher.Constraint("Coincident", 16, 3, 0, 3))
sketch2.addConstraint(Sketcher.Constraint("Coincident", 18, 3, 0, 3))
sketch2.addConstraint(Sketcher.Constraint("Coincident", 20, 3, 0, 3))
sketch2.addConstraint(Sketcher.Constraint("Coincident", 22, 3, 0, 3))
sketch2.addConstraint(Sketcher.Constraint("Coincident", 24, 3, 0, 3))
sketch2.addConstraint(Sketcher.Constraint("Coincident", 26, 3, 0, 3))
sketch2.addConstraint(Sketcher.Constraint("Coincident", 28, 3, 0, 3))
sketch2.addConstraint(Sketcher.Constraint("Coincident", 30, 3, 0, 3))
sketch2.addConstraint(Sketcher.Constraint("Coincident", 32, 3, 0, 3))
sketch2.addConstraint(Sketcher.Constraint("Coincident", 34, 3, 0, 3))
sketch2.addConstraint(Sketcher.Constraint("Equal", 0, 2))
sketch2.addConstraint(Sketcher.Constraint("Equal", 1, 3))
sketch2.addConstraint(Sketcher.Constraint("Equal", 2, 4))
sketch2.addConstraint(Sketcher.Constraint("Equal", 3, 5))
sketch2.addConstraint(Sketcher.Constraint("Equal", 4, 6))
sketch2.addConstraint(Sketcher.Constraint("Equal", 5, 7))
sketch2.addConstraint(Sketcher.Constraint("Equal", 6, 8))
sketch2.addConstraint(Sketcher.Constraint("Equal", 7, 9))
sketch2.addConstraint(Sketcher.Constraint("Equal", 8, 10))
sketch2.addConstraint(Sketcher.Constraint("Equal", 9, 11))
sketch2.addConstraint(Sketcher.Constraint("Equal", 10, 12))
sketch2.addConstraint(Sketcher.Constraint("Equal", 11, 13))
sketch2.addConstraint(Sketcher.Constraint("Equal", 12, 14))
sketch2.addConstraint(Sketcher.Constraint("Equal", 13, 15))
sketch2.addConstraint(Sketcher.Constraint("Equal", 14, 16))
sketch2.addConstraint(Sketcher.Constraint("Equal", 15, 17))
sketch2.addConstraint(Sketcher.Constraint("Equal", 16, 18))
sketch2.addConstraint(Sketcher.Constraint("Equal", 17, 19))
sketch2.addConstraint(Sketcher.Constraint("Equal", 18, 20))
sketch2.addConstraint(Sketcher.Constraint("Equal", 19, 21))
sketch2.addConstraint(Sketcher.Constraint("Equal", 20, 22))
sketch2.addConstraint(Sketcher.Constraint("Equal", 21, 23))
sketch2.addConstraint(Sketcher.Constraint("Equal", 22, 24))
sketch2.addConstraint(Sketcher.Constraint("Equal", 23, 25))
sketch2.addConstraint(Sketcher.Constraint("Equal", 24, 26))
sketch2.addConstraint(Sketcher.Constraint("Equal", 25, 27))
sketch2.addConstraint(Sketcher.Constraint("Equal", 26, 28))
sketch2.addConstraint(Sketcher.Constraint("Equal", 27, 29))
sketch2.addConstraint(Sketcher.Constraint("Equal", 28, 30))
sketch2.addConstraint(Sketcher.Constraint("Equal", 29, 31))
sketch2.addConstraint(Sketcher.Constraint("Equal", 30, 32))
sketch2.addConstraint(Sketcher.Constraint("Equal", 31, 33))
sketch2.addConstraint(Sketcher.Constraint("Equal", 32, 34))
sketch2.addConstraint(Sketcher.Constraint("Equal", 33, 35))
sketch2.addConstraint(Sketcher.Constraint("Symmetric", 7, 3, 9, 3, -2))
sketch2.addConstraint(Sketcher.Constraint("Symmetric", 5, 3, 11, 3, -2))
sketch2.addConstraint(Sketcher.Constraint("Symmetric", 3, 3, 13, 3, -2))
sketch2.addConstraint(Sketcher.Constraint("Symmetric", 1, 3, 15, 3, -2))
sketch2.addConstraint(Sketcher.Constraint("Symmetric", 25, 3, 27, 3, -2))
sketch2.addConstraint(Sketcher.Constraint("Symmetric", 23, 3, 29, 3, -2))
sketch2.addConstraint(Sketcher.Constraint("Symmetric", 21, 3, 31, 3, -2))
sketch2.addConstraint(Sketcher.Constraint("Symmetric", 19, 3, 33, 3, -2))
sketch2.addConstraint(Sketcher.Constraint("Symmetric", 17, 3, 35, 3, -2))
sketch2.addConstraint(Sketcher.Constraint("PointOnObject", 0, 3, -2))
sketch2.addConstraint(Sketcher.Constraint("Horizontal", 16, 3, 17, 3))
sketch2.addConstraint(Sketcher.Constraint("Vertical", 15, 3, 19, 3))
sketch2.addConstraint(Sketcher.Constraint("Vertical", 13, 3, 21, 3))
sketch2.addConstraint(Sketcher.Constraint("Vertical", 11, 3, 23, 3))
sketch2.addConstraint(Sketcher.Constraint("Vertical", 9, 3, 25, 3))
sketch2.addConstraint(Sketcher.Constraint("Vertical", 15, 1, 18, 2))
sketch2.addConstraint(Sketcher.Constraint("Vertical", 13, 1, 20, 2))
sketch2.addConstraint(Sketcher.Constraint("Vertical", 11, 1, 22, 2))
sketch2.addConstraint(Sketcher.Constraint("Vertical", 9, 1, 24, 2))
sketch2.addConstraint(Sketcher.Constraint("Radius", 0, Q("45 mm")))
sketch2.addConstraint(Sketcher.Constraint("Radius", 1, Q("5 mm")))
sketch2.addConstraint(Sketcher.Constraint("DistanceX", 17, 3, -1, 1, Q("45 mm")))
sketch2.addConstraint(Sketcher.Constraint("DistanceX", -1, 1, 5, 3, Q("22.5 mm")))
sketch2.addConstraint(Sketcher.Constraint("DistanceX", -1, 1, 3, 3, Q("34.472 mm")))
sketch2.addConstraint(Sketcher.Constraint("DistanceX", -1, 1, 0, 2, Q("43.732602 mm")))
sketch2.addConstraint(Sketcher.Constraint("DistanceX", -1, 1, 7, 1, Q("2.849498 mm")))
sketch2.addConstraint(Sketcher.Constraint("DistanceY", -1, 1, 1, 3, Q("1078.67698 mm")))
sketch2.addConstraint(Sketcher.Constraint("DistanceY", -1, 1, 21, 3, Q("1034.360631 mm")))
sketch2.addConstraint(Sketcher.Constraint("DistanceY", -1, 1, 23, 3, Q("1024.31493 mm")))
sketch2.addConstraint(Sketcher.Constraint("DistanceY", -1, 1, 1, 1, Q("1083.273181 mm")))
sketch2.addConstraint(Sketcher.Constraint("DistanceX", -1, 1, 7, 3, Q("7.814168 mm")))
pad2 = body.newObject("PartDesign::Pad", "Pad001")
pad2.Profile = sketch2
pad2.Length = 2.5

# Sketch on YZ plane
sketch3 = body.newObject("Sketcher::SketchObject", "Sketch002")
sketch3.AttachmentSupport = (doc.getObject("YZ_Plane"), [""])
sketch3.MapMode = "FlatFace"
sketch3.AttachmentOffset = App.Placement(V(0, 0, 5), App.Rotation())
sketch3.addGeometry(Part.ArcOfCircle(Part.Circle(V(0, 1063, 0), V(0, 0, 1), 28), math.radians(10.48), math.radians(25.52)), False)
sketch3.addGeometry(Part.ArcOfCircle(Part.Circle(V(22, 1079, 0), V(0, 0, 1), 5), math.radians(126), math.radians(306)), False)
sketch3.addGeometry(Part.ArcOfCircle(Part.Circle(V(0, 1063, 0), V(0, 0, 1), 28), math.radians(46.48), math.radians(61.52)), False)
sketch3.addGeometry(Part.ArcOfCircle(Part.Circle(V(8, 1089, 0), V(0, 0, 1), 5), math.radians(162), math.radians(342)), False)
sketch3.addGeometry(Part.ArcOfCircle(Part.Circle(V(0, 1063, 0), V(0, 0, 1), 27), math.radians(82.48), math.radians(97.52)), False)
sketch3.addGeometry(Part.ArcOfCircle(Part.Circle(V(-8, 1089, 0), V(0, 0, 1), 5), math.radians(-162), math.radians(18)), False)
sketch3.addGeometry(Part.ArcOfCircle(Part.Circle(V(0, 1063, 0), V(0, 0, 1), 28), math.radians(118.48), math.radians(133.52)), False)
sketch3.addGeometry(Part.ArcOfCircle(Part.Circle(V(-22, 1079, 0), V(0, 0, 1), 5), math.radians(-126), math.radians(54)), False)
sketch3.addGeometry(Part.ArcOfCircle(Part.Circle(V(0, 1063, 0), V(0, 0, 1), 28), math.radians(154.48), math.radians(169.52)), False)
sketch3.addGeometry(Part.ArcOfCircle(Part.Circle(V(-27, 1063, 0), V(0, 0, 1), 5), math.radians(-90), math.radians(90)), False)
sketch3.addGeometry(Part.ArcOfCircle(Part.Circle(V(0, 1063, 0), V(0, 0, 1), 28), math.radians(-169.52), math.radians(-154.48)), False)
sketch3.addGeometry(Part.ArcOfCircle(Part.Circle(V(-22, 1047, 0), V(0, 0, 1), 5), math.radians(-54), math.radians(126)), False)
sketch3.addGeometry(Part.ArcOfCircle(Part.Circle(V(0, 1063, 0), V(0, 0, 1), 28), math.radians(-133.52), math.radians(-118.48)), False)
sketch3.addGeometry(Part.ArcOfCircle(Part.Circle(V(-8, 1038, 0), V(0, 0, 1), 5), math.radians(-18), math.radians(162)), False)
sketch3.addGeometry(Part.ArcOfCircle(Part.Circle(V(0, 1063, 0), V(0, 0, 1), 27), math.radians(-97.52), math.radians(-82.48)), False)
sketch3.addGeometry(Part.ArcOfCircle(Part.Circle(V(8, 1038, 0), V(0, 0, 1), 5), math.radians(18), math.radians(198)), False)
sketch3.addGeometry(Part.ArcOfCircle(Part.Circle(V(0, 1063, 0), V(0, 0, 1), 28), math.radians(-61.52), math.radians(-46.48)), False)
sketch3.addGeometry(Part.ArcOfCircle(Part.Circle(V(22, 1047, 0), V(0, 0, 1), 5), math.radians(54), math.radians(234)), False)
sketch3.addGeometry(Part.ArcOfCircle(Part.Circle(V(0, 1063, 0), V(0, 0, 1), 28), math.radians(-25.52), math.radians(-10.48)), False)
sketch3.addGeometry(Part.ArcOfCircle(Part.Circle(V(27, 1063, 0), V(0, 0, 1), 5), math.radians(90), math.radians(270)), False)
sketch3.addConstraint(Sketcher.Constraint("Coincident", 0, 2, 1, 2))
sketch3.addConstraint(Sketcher.Constraint("Coincident", 1, 1, 2, 1))
sketch3.addConstraint(Sketcher.Constraint("Coincident", 2, 2, 3, 2))
sketch3.addConstraint(Sketcher.Constraint("Coincident", 3, 1, 4, 1))
sketch3.addConstraint(Sketcher.Constraint("Coincident", 4, 2, 5, 2))
sketch3.addConstraint(Sketcher.Constraint("Coincident", 5, 1, 6, 1))
sketch3.addConstraint(Sketcher.Constraint("Coincident", 6, 2, 7, 2))
sketch3.addConstraint(Sketcher.Constraint("Coincident", 7, 1, 8, 1))
sketch3.addConstraint(Sketcher.Constraint("Coincident", 8, 2, 9, 2))
sketch3.addConstraint(Sketcher.Constraint("Coincident", 9, 1, 10, 1))
sketch3.addConstraint(Sketcher.Constraint("Coincident", 10, 2, 11, 2))
sketch3.addConstraint(Sketcher.Constraint("Coincident", 11, 1, 12, 1))
sketch3.addConstraint(Sketcher.Constraint("Coincident", 12, 2, 13, 2))
sketch3.addConstraint(Sketcher.Constraint("Coincident", 13, 1, 14, 1))
sketch3.addConstraint(Sketcher.Constraint("Coincident", 14, 2, 15, 2))
sketch3.addConstraint(Sketcher.Constraint("Coincident", 15, 1, 16, 1))
sketch3.addConstraint(Sketcher.Constraint("Coincident", 16, 2, 17, 2))
sketch3.addConstraint(Sketcher.Constraint("Coincident", 17, 1, 18, 1))
sketch3.addConstraint(Sketcher.Constraint("Coincident", 18, 2, 19, 2))
sketch3.addConstraint(Sketcher.Constraint("Coincident", 19, 1, 0, 1))
sketch3.addConstraint(Sketcher.Constraint("Coincident", 2, 3, 0, 3))
sketch3.addConstraint(Sketcher.Constraint("Coincident", 4, 3, 0, 3))
sketch3.addConstraint(Sketcher.Constraint("Coincident", 6, 3, 0, 3))
sketch3.addConstraint(Sketcher.Constraint("Coincident", 8, 3, 0, 3))
sketch3.addConstraint(Sketcher.Constraint("Coincident", 10, 3, 0, 3))
sketch3.addConstraint(Sketcher.Constraint("Coincident", 12, 3, 0, 3))
sketch3.addConstraint(Sketcher.Constraint("Coincident", 14, 3, 0, 3))
sketch3.addConstraint(Sketcher.Constraint("Coincident", 16, 3, 0, 3))
sketch3.addConstraint(Sketcher.Constraint("Coincident", 18, 3, 0, 3))
sketch3.addConstraint(Sketcher.Constraint("Equal", 0, 2))
sketch3.addConstraint(Sketcher.Constraint("Equal", 1, 3))
sketch3.addConstraint(Sketcher.Constraint("Equal", 2, 4))
sketch3.addConstraint(Sketcher.Constraint("Equal", 3, 5))
sketch3.addConstraint(Sketcher.Constraint("Equal", 4, 6))
sketch3.addConstraint(Sketcher.Constraint("Equal", 5, 7))
sketch3.addConstraint(Sketcher.Constraint("Equal", 6, 8))
sketch3.addConstraint(Sketcher.Constraint("Equal", 7, 9))
sketch3.addConstraint(Sketcher.Constraint("Equal", 8, 10))
sketch3.addConstraint(Sketcher.Constraint("Equal", 9, 11))
sketch3.addConstraint(Sketcher.Constraint("Equal", 10, 12))
sketch3.addConstraint(Sketcher.Constraint("Equal", 11, 13))
sketch3.addConstraint(Sketcher.Constraint("Equal", 12, 14))
sketch3.addConstraint(Sketcher.Constraint("Equal", 13, 15))
sketch3.addConstraint(Sketcher.Constraint("Equal", 14, 16))
sketch3.addConstraint(Sketcher.Constraint("Equal", 15, 17))
sketch3.addConstraint(Sketcher.Constraint("Equal", 16, 18))
sketch3.addConstraint(Sketcher.Constraint("Equal", 17, 19))
sketch3.addConstraint(Sketcher.Constraint("Symmetric", 3, 3, 5, 3, -2))
sketch3.addConstraint(Sketcher.Constraint("Symmetric", 1, 3, 7, 3, -2))
sketch3.addConstraint(Sketcher.Constraint("Symmetric", 13, 3, 15, 3, -2))
sketch3.addConstraint(Sketcher.Constraint("Symmetric", 11, 3, 17, 3, -2))
sketch3.addConstraint(Sketcher.Constraint("Symmetric", 9, 3, 19, 3, -2))
sketch3.addConstraint(Sketcher.Constraint("PointOnObject", 0, 3, -2))
sketch3.addConstraint(Sketcher.Constraint("Horizontal", 8, 3, 9, 3))
sketch3.addConstraint(Sketcher.Constraint("Vertical", 7, 3, 11, 3))
sketch3.addConstraint(Sketcher.Constraint("Vertical", 5, 3, 13, 3))
sketch3.addConstraint(Sketcher.Constraint("Vertical", 9, 3, 8, 2))
sketch3.addConstraint(Sketcher.Constraint("Vertical", 7, 1, 10, 2))
sketch3.addConstraint(Sketcher.Constraint("Vertical", 5, 1, 12, 2))
sketch3.addConstraint(Sketcher.Constraint("Radius", 1, Q("5 mm")))
sketch3.addConstraint(Sketcher.Constraint("Radius", 0, Q("27.5 mm")))
sketch3.addConstraint(Sketcher.Constraint("DistanceY", -1, 1, 11, 3, Q("1047.3914 mm")))
sketch3.addConstraint(Sketcher.Constraint("DistanceX", 3, 1, 1, 3, Q("18.2761 mm")))
sketch3.addConstraint(Sketcher.Constraint("DistanceX", -1, 1, 1, 3, Q("21.877142 mm")))
sketch3.addConstraint(Sketcher.Constraint("DistanceY", -1, 1, 13, 3, Q("1037.567951 mm")))
sketch3.addConstraint(Sketcher.Constraint("DistanceX", -1, 1, 0, 2, Q("24.816068 mm")))
pad3 = body.newObject("PartDesign::Pad", "Pad002")
pad3.Profile = sketch3
pad3.Length = 2.5

# Sketch on YZ plane
sketch4 = body.newObject("Sketcher::SketchObject", "Sketch003")
sketch4.AttachmentSupport = (doc.getObject("YZ_Plane"), [""])
sketch4.MapMode = "FlatFace"
sketch4.addGeometry(Part.Circle(V(0, 1063, 0), V(0, 0, 1), 10), False)
sketch4.addConstraint(Sketcher.Constraint("PointOnObject", 0, 3, -2))
sketch4.addConstraint(Sketcher.Constraint("Diameter", 0, Q("20 mm")))
sketch4.addConstraint(Sketcher.Constraint("DistanceY", -1, 1, 0, 3, Q("1063.286074 mm")))
pocket1 = body.newObject("PartDesign::Pocket", "Pocket")
pocket1.Profile = sketch4
pocket1.Type = "ThroughAll"
pocket1.Reversed = True

doc.recompute()
